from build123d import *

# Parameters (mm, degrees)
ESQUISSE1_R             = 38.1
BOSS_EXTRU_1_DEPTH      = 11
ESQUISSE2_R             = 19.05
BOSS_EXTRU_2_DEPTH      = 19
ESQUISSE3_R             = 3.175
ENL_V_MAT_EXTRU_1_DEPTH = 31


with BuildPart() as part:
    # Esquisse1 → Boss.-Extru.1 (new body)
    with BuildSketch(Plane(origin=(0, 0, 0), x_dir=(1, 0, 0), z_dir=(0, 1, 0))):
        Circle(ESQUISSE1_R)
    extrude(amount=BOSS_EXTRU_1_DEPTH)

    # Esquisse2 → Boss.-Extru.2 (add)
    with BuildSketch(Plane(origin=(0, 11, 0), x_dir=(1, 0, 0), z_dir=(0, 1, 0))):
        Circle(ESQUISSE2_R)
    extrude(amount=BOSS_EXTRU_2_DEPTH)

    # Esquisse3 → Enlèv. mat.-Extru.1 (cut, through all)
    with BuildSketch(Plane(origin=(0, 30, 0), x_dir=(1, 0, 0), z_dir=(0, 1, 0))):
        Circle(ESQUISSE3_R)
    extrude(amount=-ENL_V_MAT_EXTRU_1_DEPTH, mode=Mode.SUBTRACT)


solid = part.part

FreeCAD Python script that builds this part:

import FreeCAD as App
import Part
import Sketcher

doc = App.newDocument("Part")
body = doc.addObject("PartDesign::Body", "Body")

# Sketch on XZ plane
sketch1 = body.newObject("Sketcher::SketchObject", "Sketch")
sketch1.AttachmentSupport = (doc.getObject("XZ_Plane"), [""])
sketch1.MapMode = "FlatFace"
sketch1.addGeometry(Part.Circle(App.Vector(0, 0, 0), App.Vector(0, 0, 1), 38), False)
sketch1.addConstraint(Sketcher.Constraint("Coincident", 0, 3, -1, 1))
sketch1.addConstraint(Sketcher.Constraint("Diameter", 0, 76.2))
pad1 = body.newObject("PartDesign::Pad", "Pad")
pad1.Profile = sketch1
pad1.Length = 11
pad1.Reversed = True

# Sketch on XZ plane
sketch2 = body.newObject("Sketcher::SketchObject", "Sketch001")
sketch2.AttachmentSupport = (doc.getObject("XZ_Plane"), [""])
sketch2.MapMode = "FlatFace"
sketch2.AttachmentOffset = App.Placement(App.Vector(0, 0, -11), App.Rotation())
sketch2.addGeometry(Part.Circle(App.Vector(0, 0, 0), App.Vector(0, 0, 1), 19), False)
sketch2.addConstraint(Sketcher.Constraint("Coincident", 0, 3, -1, 1))
sketch2.addConstraint(Sketcher.Constraint("Diameter", 0, 38.1))
pad2 = body.newObject("PartDesign::Pad", "Pad001")
pad2.Profile = sketch2
pad2.Length = 19
pad2.Reversed = True

# Sketch on XZ plane
sketch3 = body.newObject("Sketcher::SketchObject", "Sketch002")
sketch3.AttachmentSupport = (doc.getObject("XZ_Plane"), [""])
sketch3.MapMode = "FlatFace"
sketch3.AttachmentOffset = App.Placement(App.Vector(0, 0, -30), App.Rotation())
sketch3.addGeometry(Part.Circle(App.Vector(0, 0, 0), App.Vector(0, 0, 1), 3.2), False)
sketch3.addConstraint(Sketcher.Constraint("Coincident", 0, 3, -1, 1))
sketch3.addConstraint(Sketcher.Constraint("Diameter", 0, 6.35))
pocket1 = body.newObject("PartDesign::Pocket", "Pocket")
pocket1.Profile = sketch3
pocket1.Type = "ThroughAll"
pocket1.Reversed = True

doc.recompute()
